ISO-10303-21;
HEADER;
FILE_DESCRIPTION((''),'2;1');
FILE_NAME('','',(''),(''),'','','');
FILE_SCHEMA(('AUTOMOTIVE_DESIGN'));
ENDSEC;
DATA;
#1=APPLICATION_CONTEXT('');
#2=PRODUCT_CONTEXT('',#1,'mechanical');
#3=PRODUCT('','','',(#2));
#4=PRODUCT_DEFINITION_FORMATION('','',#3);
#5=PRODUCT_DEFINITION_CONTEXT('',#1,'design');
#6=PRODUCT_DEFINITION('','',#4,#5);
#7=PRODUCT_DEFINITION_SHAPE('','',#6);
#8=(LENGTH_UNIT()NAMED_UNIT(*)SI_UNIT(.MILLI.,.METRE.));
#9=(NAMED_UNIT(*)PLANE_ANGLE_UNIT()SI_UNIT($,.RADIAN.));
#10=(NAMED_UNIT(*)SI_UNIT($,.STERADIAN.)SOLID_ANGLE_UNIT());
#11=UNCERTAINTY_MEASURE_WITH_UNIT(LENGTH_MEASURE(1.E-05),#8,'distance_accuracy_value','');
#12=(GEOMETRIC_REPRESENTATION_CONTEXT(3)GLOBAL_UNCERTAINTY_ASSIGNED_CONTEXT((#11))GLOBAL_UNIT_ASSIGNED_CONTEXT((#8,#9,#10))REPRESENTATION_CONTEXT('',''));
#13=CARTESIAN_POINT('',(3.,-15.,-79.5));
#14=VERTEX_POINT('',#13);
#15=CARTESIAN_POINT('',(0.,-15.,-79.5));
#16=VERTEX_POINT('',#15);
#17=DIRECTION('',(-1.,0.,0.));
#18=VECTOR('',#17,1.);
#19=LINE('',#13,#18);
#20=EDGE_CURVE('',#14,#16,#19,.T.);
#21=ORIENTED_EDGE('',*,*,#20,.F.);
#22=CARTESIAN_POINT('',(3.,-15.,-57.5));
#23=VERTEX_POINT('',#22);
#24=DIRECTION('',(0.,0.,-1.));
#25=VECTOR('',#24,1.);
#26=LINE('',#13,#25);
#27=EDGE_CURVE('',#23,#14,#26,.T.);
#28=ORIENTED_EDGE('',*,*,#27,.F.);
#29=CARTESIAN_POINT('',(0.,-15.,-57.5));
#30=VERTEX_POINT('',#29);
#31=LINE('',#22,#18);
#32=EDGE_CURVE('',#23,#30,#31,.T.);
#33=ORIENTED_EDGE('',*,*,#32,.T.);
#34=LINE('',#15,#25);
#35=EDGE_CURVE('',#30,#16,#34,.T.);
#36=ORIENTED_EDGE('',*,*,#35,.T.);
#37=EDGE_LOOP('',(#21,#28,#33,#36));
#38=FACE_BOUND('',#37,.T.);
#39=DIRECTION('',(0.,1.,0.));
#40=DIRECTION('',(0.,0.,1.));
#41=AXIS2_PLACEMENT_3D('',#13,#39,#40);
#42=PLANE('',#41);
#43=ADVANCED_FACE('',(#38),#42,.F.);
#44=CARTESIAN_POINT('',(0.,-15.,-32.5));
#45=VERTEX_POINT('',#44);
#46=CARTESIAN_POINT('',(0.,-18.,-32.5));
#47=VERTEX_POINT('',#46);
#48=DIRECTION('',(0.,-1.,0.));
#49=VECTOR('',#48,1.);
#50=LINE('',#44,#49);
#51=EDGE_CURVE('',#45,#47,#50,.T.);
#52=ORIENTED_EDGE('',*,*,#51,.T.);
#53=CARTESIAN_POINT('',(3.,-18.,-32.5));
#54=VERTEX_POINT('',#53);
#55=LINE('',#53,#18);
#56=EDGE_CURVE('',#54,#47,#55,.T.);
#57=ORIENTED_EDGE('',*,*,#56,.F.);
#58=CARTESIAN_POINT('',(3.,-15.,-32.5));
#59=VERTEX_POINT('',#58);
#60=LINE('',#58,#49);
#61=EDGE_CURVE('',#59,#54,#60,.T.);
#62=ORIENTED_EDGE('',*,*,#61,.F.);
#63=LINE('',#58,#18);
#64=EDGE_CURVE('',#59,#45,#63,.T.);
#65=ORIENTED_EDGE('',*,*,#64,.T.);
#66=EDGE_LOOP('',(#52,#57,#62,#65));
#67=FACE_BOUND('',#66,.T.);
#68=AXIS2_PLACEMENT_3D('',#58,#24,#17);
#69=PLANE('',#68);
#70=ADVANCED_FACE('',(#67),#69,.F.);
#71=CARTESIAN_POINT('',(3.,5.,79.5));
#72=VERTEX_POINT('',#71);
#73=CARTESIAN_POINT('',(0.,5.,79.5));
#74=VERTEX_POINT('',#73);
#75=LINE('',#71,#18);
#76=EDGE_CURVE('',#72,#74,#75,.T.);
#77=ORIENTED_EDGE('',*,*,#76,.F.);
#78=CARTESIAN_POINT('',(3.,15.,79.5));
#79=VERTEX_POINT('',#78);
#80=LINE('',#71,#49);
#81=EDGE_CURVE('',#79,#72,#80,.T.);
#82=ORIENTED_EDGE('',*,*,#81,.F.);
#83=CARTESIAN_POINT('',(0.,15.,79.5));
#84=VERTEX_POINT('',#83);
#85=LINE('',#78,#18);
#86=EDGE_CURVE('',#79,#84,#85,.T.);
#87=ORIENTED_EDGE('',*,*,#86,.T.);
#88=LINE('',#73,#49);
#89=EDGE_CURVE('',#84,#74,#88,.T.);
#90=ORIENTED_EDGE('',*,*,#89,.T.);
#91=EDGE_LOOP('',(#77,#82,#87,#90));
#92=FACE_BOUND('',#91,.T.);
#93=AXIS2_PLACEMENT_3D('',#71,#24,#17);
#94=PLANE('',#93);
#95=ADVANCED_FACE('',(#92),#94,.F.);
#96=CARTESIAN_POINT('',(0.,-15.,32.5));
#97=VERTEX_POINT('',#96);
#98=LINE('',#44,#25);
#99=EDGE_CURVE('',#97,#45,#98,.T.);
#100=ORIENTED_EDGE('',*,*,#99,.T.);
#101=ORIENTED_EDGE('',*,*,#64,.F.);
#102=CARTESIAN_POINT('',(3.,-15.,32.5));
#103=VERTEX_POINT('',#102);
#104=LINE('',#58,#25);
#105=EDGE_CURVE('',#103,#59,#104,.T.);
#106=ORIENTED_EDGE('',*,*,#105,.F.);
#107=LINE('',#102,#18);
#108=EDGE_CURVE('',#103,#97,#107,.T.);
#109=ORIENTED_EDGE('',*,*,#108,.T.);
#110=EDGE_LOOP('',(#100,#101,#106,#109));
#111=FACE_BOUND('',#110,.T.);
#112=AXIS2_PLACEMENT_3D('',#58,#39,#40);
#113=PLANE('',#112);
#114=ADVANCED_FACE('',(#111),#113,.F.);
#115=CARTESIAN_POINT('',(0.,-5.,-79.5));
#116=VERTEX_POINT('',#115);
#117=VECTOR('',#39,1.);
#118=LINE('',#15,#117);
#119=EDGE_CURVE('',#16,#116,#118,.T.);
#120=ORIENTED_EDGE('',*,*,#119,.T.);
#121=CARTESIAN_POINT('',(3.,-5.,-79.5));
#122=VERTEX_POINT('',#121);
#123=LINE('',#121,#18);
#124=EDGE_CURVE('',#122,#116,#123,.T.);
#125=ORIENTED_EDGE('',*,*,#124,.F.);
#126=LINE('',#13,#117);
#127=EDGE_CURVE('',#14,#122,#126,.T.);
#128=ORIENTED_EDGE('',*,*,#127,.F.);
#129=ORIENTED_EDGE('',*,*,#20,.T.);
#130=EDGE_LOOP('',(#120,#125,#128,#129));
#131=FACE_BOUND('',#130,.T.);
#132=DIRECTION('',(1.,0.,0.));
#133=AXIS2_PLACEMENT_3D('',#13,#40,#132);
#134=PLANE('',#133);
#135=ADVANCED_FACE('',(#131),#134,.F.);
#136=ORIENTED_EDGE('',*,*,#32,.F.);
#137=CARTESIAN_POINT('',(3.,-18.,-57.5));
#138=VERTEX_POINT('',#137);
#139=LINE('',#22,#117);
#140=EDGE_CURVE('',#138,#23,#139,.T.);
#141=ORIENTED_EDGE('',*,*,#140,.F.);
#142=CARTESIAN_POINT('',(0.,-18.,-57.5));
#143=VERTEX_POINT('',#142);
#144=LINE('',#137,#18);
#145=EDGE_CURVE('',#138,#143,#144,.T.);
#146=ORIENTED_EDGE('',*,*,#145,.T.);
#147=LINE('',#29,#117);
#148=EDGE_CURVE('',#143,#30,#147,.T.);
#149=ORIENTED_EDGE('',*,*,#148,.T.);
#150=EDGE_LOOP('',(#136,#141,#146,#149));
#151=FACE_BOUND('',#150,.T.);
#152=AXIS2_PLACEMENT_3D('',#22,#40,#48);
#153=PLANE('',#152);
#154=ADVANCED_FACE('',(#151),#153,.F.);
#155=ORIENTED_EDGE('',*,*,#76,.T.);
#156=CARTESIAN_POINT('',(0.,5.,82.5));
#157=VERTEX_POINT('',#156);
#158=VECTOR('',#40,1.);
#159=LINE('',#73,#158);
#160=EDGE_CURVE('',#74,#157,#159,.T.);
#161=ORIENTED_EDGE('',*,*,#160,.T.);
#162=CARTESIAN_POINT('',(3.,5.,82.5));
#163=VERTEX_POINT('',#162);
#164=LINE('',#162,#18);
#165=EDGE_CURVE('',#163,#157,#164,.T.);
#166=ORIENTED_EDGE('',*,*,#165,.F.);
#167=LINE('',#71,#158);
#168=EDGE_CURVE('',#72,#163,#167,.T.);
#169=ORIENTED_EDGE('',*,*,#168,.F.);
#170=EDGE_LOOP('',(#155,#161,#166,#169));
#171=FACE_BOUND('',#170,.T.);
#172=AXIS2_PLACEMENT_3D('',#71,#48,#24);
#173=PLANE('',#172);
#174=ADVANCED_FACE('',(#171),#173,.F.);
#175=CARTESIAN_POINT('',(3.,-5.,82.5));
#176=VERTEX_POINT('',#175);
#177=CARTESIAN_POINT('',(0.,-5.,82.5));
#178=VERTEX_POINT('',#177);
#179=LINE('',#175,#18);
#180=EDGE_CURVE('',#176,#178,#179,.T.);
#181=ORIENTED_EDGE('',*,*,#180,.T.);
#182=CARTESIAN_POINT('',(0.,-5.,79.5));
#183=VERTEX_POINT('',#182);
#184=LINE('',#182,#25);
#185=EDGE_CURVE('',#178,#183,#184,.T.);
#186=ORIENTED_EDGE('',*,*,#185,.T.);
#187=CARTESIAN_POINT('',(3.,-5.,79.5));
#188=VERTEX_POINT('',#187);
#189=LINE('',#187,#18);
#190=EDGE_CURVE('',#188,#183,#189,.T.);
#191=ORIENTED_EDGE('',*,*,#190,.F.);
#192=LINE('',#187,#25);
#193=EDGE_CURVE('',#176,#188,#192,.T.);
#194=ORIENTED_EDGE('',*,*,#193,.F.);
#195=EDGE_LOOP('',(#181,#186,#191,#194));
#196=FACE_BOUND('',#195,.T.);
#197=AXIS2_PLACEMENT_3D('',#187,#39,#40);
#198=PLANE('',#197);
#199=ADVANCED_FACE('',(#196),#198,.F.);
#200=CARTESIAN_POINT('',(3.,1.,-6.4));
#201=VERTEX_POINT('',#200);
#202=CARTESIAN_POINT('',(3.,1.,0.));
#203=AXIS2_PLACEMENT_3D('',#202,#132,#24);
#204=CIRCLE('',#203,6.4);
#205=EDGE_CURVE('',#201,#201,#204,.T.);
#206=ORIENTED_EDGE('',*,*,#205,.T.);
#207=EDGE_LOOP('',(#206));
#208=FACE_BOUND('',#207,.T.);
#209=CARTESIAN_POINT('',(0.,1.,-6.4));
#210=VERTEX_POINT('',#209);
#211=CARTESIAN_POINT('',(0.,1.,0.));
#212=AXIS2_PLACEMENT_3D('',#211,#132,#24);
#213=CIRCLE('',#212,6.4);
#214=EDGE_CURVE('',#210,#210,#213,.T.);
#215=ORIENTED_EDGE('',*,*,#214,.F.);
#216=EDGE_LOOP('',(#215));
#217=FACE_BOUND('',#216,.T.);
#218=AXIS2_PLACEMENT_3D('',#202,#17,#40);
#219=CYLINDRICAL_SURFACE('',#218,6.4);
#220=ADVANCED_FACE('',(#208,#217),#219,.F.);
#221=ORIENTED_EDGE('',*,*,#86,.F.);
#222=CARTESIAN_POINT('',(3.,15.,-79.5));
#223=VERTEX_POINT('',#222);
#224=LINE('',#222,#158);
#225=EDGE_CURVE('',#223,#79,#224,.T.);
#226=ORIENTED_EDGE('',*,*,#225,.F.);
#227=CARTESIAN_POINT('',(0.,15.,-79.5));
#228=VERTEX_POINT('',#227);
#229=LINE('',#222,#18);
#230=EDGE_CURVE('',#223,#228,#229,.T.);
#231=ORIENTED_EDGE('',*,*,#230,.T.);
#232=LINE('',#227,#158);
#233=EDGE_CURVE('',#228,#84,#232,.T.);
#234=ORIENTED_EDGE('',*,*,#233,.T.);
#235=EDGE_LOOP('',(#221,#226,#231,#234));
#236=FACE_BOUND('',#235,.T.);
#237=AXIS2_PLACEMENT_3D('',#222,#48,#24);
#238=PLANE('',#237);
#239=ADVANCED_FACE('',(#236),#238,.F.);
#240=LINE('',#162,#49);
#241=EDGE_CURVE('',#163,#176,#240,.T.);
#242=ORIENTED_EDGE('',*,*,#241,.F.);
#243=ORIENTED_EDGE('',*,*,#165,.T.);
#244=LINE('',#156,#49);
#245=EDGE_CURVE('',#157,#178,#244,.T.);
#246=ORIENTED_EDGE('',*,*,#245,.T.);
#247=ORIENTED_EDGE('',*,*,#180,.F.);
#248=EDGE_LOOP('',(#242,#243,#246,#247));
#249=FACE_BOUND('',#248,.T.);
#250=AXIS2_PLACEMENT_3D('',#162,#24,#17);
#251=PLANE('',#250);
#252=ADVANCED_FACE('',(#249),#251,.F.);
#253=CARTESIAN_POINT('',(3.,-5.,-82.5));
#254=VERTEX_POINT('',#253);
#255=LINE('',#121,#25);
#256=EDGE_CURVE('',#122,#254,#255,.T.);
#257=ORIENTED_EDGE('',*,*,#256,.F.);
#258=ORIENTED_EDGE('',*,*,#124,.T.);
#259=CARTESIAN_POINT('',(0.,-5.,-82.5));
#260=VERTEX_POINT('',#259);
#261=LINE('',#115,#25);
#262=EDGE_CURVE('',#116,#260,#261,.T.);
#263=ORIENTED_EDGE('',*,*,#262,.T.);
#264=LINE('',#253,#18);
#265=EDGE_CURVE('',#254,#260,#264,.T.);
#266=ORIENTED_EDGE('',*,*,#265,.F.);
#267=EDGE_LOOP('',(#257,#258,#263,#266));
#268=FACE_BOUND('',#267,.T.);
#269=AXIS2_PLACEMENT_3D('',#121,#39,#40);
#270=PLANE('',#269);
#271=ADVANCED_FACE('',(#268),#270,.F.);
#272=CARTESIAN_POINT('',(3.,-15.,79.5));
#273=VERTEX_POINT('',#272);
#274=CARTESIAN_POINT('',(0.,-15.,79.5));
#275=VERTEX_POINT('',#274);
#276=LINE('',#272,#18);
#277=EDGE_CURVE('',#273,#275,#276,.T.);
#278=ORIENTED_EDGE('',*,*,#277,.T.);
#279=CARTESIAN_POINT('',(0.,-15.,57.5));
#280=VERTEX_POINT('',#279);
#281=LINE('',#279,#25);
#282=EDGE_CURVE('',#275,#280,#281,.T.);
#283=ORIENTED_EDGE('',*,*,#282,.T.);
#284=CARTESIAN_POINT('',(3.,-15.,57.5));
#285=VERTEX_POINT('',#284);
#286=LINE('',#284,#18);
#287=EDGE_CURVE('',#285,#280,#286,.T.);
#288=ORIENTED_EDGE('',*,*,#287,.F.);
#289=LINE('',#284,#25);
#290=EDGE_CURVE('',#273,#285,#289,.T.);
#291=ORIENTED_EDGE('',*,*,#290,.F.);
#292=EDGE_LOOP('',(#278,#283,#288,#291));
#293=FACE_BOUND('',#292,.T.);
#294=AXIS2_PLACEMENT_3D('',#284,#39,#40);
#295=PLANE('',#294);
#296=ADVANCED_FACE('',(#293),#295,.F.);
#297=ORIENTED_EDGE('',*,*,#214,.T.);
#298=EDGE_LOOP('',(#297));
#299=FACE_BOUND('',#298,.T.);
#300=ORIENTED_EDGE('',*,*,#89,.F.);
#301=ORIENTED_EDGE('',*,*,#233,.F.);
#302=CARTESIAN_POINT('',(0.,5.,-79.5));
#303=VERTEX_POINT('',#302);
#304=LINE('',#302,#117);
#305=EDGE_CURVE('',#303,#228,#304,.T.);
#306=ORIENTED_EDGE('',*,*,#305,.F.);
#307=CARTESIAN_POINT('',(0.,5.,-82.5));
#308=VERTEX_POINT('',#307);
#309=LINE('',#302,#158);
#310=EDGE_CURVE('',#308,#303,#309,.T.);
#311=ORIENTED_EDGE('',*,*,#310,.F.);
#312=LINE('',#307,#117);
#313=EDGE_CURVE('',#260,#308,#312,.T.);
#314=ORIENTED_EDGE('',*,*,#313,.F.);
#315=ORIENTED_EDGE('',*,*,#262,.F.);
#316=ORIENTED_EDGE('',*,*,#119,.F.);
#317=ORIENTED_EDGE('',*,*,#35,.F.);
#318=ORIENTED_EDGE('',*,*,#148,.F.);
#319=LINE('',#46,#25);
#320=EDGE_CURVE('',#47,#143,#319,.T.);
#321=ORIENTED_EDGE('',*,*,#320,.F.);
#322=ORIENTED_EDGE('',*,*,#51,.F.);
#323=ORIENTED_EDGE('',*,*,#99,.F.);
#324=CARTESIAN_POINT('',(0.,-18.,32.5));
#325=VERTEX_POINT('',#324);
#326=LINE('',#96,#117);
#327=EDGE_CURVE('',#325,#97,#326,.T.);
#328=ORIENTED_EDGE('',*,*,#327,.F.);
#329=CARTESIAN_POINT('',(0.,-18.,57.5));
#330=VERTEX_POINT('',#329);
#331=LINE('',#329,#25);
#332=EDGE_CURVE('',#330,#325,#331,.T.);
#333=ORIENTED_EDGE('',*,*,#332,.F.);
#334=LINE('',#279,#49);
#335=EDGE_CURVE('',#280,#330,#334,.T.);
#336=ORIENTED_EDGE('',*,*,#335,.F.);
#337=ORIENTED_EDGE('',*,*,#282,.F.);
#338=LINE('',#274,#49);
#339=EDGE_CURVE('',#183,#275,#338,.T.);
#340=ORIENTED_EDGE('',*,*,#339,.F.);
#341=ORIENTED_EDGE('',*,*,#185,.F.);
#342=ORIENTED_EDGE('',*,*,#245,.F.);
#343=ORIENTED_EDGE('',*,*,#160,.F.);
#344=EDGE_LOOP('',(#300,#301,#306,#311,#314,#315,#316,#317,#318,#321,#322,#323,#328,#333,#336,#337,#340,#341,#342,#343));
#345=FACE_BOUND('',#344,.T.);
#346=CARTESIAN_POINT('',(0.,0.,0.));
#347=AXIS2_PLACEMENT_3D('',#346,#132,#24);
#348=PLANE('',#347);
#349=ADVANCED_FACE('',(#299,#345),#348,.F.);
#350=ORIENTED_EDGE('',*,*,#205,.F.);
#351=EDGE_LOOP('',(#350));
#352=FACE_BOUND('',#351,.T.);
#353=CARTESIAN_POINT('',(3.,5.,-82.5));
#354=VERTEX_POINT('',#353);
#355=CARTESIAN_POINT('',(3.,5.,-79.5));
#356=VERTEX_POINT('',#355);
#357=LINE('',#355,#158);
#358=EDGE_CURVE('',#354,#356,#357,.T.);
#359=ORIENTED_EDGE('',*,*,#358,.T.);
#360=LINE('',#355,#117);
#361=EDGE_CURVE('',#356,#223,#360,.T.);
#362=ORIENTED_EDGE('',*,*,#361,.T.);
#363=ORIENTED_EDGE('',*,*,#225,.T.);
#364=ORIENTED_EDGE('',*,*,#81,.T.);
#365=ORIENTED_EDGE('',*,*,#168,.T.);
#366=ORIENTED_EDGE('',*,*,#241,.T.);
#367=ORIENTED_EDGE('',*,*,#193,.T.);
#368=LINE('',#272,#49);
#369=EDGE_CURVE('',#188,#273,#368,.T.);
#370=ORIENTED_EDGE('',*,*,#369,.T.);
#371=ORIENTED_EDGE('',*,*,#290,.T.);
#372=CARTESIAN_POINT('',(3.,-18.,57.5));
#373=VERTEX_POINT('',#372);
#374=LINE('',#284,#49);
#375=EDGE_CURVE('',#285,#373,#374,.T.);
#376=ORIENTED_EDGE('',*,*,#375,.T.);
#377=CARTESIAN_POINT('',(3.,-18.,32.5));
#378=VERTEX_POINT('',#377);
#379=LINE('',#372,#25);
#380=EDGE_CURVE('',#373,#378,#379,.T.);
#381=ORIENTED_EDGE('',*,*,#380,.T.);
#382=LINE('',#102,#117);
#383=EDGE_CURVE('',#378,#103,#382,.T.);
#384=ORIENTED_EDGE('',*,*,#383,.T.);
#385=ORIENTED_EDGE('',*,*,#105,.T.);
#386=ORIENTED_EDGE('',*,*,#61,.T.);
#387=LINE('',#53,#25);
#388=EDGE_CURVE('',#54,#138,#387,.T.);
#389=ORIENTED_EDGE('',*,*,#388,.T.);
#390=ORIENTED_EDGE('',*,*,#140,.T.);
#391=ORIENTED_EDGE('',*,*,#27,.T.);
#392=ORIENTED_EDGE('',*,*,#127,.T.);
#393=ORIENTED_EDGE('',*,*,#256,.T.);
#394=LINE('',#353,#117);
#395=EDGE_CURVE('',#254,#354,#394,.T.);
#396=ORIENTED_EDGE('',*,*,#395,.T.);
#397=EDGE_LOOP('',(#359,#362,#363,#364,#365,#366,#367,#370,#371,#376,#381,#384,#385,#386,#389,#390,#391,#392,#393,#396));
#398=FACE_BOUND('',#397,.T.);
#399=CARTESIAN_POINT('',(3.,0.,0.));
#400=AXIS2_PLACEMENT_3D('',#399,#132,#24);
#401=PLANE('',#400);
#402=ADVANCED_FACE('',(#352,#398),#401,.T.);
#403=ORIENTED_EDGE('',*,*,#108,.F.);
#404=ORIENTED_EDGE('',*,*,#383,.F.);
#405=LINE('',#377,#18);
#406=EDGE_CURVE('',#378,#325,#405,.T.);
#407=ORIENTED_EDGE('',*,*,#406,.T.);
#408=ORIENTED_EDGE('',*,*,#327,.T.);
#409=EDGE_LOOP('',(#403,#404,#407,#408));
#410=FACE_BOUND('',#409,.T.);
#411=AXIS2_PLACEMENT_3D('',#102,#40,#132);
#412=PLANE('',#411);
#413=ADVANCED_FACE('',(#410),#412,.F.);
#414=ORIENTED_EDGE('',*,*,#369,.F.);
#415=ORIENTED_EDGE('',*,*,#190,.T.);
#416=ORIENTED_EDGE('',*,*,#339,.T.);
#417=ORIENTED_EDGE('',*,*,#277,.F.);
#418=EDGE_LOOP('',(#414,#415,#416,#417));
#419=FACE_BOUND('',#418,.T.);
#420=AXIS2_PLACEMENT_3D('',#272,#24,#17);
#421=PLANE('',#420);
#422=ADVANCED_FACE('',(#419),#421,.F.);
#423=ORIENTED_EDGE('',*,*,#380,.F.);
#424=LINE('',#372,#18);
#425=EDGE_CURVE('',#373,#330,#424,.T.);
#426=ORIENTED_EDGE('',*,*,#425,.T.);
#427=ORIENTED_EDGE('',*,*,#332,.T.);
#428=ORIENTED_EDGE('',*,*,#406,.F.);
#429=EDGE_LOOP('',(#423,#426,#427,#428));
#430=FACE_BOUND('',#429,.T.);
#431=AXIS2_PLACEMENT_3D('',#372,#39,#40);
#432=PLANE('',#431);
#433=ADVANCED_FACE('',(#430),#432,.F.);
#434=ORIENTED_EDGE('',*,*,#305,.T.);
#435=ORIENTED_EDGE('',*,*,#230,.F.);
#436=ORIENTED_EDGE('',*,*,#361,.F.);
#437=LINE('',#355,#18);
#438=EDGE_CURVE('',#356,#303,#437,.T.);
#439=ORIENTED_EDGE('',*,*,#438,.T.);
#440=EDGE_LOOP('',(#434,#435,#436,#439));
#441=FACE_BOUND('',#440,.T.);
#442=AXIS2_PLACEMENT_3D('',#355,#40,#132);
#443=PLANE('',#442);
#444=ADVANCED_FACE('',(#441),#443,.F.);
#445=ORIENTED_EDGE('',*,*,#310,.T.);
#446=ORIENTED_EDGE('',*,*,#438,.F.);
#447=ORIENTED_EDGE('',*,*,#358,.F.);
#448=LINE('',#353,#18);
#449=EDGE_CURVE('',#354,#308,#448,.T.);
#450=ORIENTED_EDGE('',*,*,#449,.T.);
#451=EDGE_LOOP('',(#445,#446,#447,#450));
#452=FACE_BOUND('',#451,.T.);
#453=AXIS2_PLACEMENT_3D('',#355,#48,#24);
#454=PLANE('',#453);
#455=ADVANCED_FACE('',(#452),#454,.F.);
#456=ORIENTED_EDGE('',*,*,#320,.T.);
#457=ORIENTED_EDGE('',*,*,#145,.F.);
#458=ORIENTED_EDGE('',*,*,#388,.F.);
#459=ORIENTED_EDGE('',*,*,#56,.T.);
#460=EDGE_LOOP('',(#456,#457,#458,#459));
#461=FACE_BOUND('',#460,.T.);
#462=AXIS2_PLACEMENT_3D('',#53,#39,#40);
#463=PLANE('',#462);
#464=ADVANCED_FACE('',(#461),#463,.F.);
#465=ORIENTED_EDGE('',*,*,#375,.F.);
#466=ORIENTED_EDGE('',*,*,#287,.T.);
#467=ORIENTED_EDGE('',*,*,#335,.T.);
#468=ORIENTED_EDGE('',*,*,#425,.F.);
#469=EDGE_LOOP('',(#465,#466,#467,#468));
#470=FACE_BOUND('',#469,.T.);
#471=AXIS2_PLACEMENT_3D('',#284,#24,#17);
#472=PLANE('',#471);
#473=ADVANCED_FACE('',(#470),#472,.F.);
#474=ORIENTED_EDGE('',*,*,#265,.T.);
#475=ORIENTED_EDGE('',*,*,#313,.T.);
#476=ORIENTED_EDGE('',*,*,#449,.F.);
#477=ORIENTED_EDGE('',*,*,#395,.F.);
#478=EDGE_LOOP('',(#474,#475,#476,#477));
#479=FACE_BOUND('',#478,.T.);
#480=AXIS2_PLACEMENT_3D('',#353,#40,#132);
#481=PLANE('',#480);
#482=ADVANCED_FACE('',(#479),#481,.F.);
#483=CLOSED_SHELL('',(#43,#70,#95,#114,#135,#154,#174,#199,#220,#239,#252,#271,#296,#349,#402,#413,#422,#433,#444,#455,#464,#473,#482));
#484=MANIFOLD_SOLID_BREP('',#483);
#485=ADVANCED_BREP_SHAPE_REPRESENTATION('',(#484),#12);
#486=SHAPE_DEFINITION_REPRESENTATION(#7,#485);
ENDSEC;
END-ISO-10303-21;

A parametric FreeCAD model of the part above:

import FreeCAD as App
import Part
import Sketcher
from FreeCAD import Vector


def add_polygon(sketch, points):
    """Adds a closed chain of lines whose ends are joined by coincident constraints."""
    first, n = sketch.GeometryCount, len(points)
    for a, b in zip(points, points[1:] + points[:1]):
        sketch.addGeometry(Part.LineSegment(App.Vector(*a, 0), App.Vector(*b, 0)), False)
    for i in range(n):
        sketch.addConstraint(Sketcher.Constraint("Coincident", first + i, 2, first + (i + 1) % n, 1))

doc = App.newDocument("Part")
params = doc.addObject("Spreadsheet::Sheet", "Params")
for row, (alias, value) in enumerate([
    ("sketch1_diameter", "12.8 mm"),
    ("sketch1_width", "3 mm"),
    ("sketch1_width2", "10 mm"),
    ("sketch1_height", "22 mm"),
    ("sketch1_height2", "25 mm"),
    ("pad1_length", "3 mm"),
], start=1):
    params.set(f"A{row}", alias)
    params.set(f"B{row}", "=" + value)
    params.setAlias(f"B{row}", alias)

body = doc.addObject("PartDesign::Body", "Body")

sketch1 = body.newObject("Sketcher::SketchObject", "Sketch")
sketch1.AttachmentSupport = (doc.getObject("YZ_Plane"), [""])
sketch1.MapMode = "FlatFace"
add_polygon(sketch1, [(-15, 79.5), (-15, 57.5), (-18, 57.5), (-18, 32.5), (-15, 32.5), (-15, -32.5), (-18, -32.5), (-18, -57.5), (-15, -57.5), (-15, -79.5), (-5, -79.5), (-5, -82.5), (5, -82.5), (5, -79.5), (15, -79.5), (15, 79.5), (5, 79.5), (5, 82.5), (-5, 82.5), (-5, 79.5)])
sketch1.addGeometry(Part.Circle(Vector(1, 0, 0), Vector(0, 0, 1), 6.4), False)
sketch1.addConstraint([
    Sketcher.Constraint("Vertical", 0),
    Sketcher.Constraint("Horizontal", 1),
    Sketcher.Constraint("Vertical", 2),
    Sketcher.Constraint("Horizontal", 3),
    Sketcher.Constraint("Vertical", 4),
    Sketcher.Constraint("Horizontal", 5),
    Sketcher.Constraint("Vertical", 6),
    Sketcher.Constraint("Horizontal", 7),
    Sketcher.Constraint("Vertical", 8),
    Sketcher.Constraint("Horizontal", 9),
    Sketcher.Constraint("Vertical", 10),
    Sketcher.Constraint("Horizontal", 11),
    Sketcher.Constraint("Vertical", 12),
    Sketcher.Constraint("Horizontal", 13),
    Sketcher.Constraint("Vertical", 14),
    Sketcher.Constraint("Horizontal", 15),
    Sketcher.Constraint("Vertical", 16),
    Sketcher.Constraint("Horizontal", 17),
    Sketcher.Constraint("Vertical", 18),
    Sketcher.Constraint("Horizontal", 19),
    Sketcher.Constraint("Symmetric", 8, 2, 14, 2, -1, 1),
    Sketcher.Constraint("Symmetric", 10, 2, 16, 2, -1, 1),
    Sketcher.Constraint("Symmetric", 12, 2, 18, 2, -1, 1),
    Sketcher.Constraint("Symmetric", 9, 2, 12, 2, -2),
    Sketcher.Constraint("Symmetric", 2, 2, 5, 2, -1),
    Sketcher.Constraint("Symmetric", 0, 2, 7, 2, -1),
    Sketcher.Constraint("PointOnObject", 20, 3, -1),
    Sketcher.Constraint("Vertical", 0, 2, 3, 2),
    Sketcher.Constraint("Equal", 9, 11),
    Sketcher.Constraint("Equal", 7, 10),
    Sketcher.Constraint("Diameter", 20, 12.8),
    Sketcher.Constraint("DistanceX", 1, 2, 1, 1, 3.0),
    Sketcher.Constraint("DistanceX", 9, 1, 9, 2, 10.0),
    Sketcher.Constraint("DistanceY", 0, 2, 0, 1, 22.0),
    Sketcher.Constraint("DistanceY", 2, 2, 2, 1, 25.0),
    Sketcher.Constraint("DistanceY", 4, 2, 4, 1, 65.0),
    Sketcher.Constraint("DistanceX", -1, 1, 20, 3, 1.0),
])
sketch1.setExpression("Constraints[50]", "Params.sketch1_diameter")
sketch1.setExpression("Constraints[51]", "Params.sketch1_width")
sketch1.setExpression("Constraints[52]", "Params.sketch1_width2")
sketch1.setExpression("Constraints[53]", "Params.sketch1_height")
sketch1.setExpression("Constraints[54]", "Params.sketch1_height2")
pad1 = body.newObject("PartDesign::Pad", "Pad")
pad1.Profile = sketch1
pad1.setExpression("Length", "Params.pad1_length")

doc.recompute()
